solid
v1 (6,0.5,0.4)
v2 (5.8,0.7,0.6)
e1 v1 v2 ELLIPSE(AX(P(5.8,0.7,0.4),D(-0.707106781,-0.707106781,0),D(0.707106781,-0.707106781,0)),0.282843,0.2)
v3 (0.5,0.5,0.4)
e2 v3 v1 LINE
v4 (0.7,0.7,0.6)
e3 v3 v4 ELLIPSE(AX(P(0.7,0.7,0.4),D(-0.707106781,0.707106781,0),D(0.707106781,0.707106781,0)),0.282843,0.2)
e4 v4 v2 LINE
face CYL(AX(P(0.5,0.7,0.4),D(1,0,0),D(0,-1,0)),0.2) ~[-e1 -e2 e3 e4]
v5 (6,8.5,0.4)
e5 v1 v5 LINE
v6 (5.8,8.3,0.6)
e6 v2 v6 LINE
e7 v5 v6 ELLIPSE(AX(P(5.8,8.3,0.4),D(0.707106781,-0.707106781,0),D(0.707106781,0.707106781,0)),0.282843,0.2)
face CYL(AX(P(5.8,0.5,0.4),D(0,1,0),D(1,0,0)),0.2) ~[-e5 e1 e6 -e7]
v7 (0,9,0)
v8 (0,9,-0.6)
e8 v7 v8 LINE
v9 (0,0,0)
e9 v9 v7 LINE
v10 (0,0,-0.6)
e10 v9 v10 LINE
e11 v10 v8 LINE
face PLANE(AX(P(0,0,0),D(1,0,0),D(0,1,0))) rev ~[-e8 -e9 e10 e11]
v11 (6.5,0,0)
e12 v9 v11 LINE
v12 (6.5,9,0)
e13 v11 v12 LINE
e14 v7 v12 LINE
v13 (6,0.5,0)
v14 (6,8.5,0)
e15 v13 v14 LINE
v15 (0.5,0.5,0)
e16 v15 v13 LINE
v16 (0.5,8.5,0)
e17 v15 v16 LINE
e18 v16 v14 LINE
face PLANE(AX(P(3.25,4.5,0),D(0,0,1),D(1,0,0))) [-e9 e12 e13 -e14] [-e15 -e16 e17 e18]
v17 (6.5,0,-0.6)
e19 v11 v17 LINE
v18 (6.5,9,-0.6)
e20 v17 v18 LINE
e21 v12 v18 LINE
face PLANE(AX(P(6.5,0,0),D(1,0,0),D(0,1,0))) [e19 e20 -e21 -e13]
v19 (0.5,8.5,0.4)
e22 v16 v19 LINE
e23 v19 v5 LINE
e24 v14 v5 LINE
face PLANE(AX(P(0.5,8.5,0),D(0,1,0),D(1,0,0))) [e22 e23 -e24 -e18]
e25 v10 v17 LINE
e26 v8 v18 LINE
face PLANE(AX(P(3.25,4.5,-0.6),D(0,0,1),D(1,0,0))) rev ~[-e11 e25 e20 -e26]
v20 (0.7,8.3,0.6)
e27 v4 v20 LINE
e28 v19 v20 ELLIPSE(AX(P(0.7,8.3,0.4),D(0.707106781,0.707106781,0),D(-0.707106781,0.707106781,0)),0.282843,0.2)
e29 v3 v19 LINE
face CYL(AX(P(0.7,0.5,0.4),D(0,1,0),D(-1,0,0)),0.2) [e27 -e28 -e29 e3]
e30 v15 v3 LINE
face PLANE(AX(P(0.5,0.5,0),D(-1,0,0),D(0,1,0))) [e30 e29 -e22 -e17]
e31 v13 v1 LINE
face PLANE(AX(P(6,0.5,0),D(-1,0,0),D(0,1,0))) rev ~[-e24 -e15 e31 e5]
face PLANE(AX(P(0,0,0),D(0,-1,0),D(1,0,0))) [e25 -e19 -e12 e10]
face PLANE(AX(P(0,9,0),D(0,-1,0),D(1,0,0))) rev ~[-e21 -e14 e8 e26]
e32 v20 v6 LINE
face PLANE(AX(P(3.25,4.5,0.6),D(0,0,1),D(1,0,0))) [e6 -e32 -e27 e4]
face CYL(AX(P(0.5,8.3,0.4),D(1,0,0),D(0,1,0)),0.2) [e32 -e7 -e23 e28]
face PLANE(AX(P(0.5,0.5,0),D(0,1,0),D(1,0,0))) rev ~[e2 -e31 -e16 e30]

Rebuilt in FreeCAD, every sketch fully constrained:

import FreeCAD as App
import Part
import Sketcher
Q = App.Units.Quantity


def edges_at(feature, points):
    """Names of the edges that pass closest to the given points."""
    edges = feature.Shape.Edges
    near = lambda p: min(range(len(edges)), key=lambda i: edges[i].distToShape(Part.Vertex(*p))[0])
    return sorted({f"Edge{near(p) + 1}" for p in points})

doc = App.newDocument("Part")
body = doc.addObject("PartDesign::Body", "Body")

# Sketch on XY plane
sketch1 = body.newObject("Sketcher::SketchObject", "Sketch")
sketch1.AttachmentSupport = (doc.getObject("XY_Plane"), [""])
sketch1.MapMode = "FlatFace"
sketch1.addGeometry([
    Part.LineSegment(App.Vector(0, 9, 0), App.Vector(0, 0, 0)),
    Part.LineSegment(App.Vector(0, 0, 0), App.Vector(6.5, 0, 0)),
    Part.LineSegment(App.Vector(6.5, 0, 0), App.Vector(6.5, 9, 0)),
    Part.LineSegment(App.Vector(6.5, 9, 0), App.Vector(0, 9, 0)),
], False)
sketch1.addConstraint([
    Sketcher.Constraint("Coincident", 0, 2, 1, 1),
    Sketcher.Constraint("Coincident", 1, 2, 2, 1),
    Sketcher.Constraint("Coincident", 2, 2, 3, 1),
    Sketcher.Constraint("Coincident", 3, 2, 0, 1),
    Sketcher.Constraint("Vertical", 0),
    Sketcher.Constraint("Horizontal", 1),
    Sketcher.Constraint("Vertical", 2),
    Sketcher.Constraint("Horizontal", 3),
    Sketcher.Constraint("Coincident", 0, 2, -1, 1),
    Sketcher.Constraint("DistanceY", 0, 2, 0, 1, Q("9 mm")),
    Sketcher.Constraint("DistanceX", 1, 1, 1, 2, Q("6.5 mm")),
])
pad1 = body.newObject("PartDesign::Pad", "Pad")
pad1.Profile = sketch1
pad1.Length = 0.6
pad1.Reversed = True

# Sketch on XY plane
sketch2 = body.newObject("Sketcher::SketchObject", "Sketch001")
sketch2.AttachmentSupport = (doc.getObject("XY_Plane"), [""])
sketch2.MapMode = "FlatFace"
sketch2.addGeometry([
    Part.LineSegment(App.Vector(0.5, 8.5, 0), App.Vector(0.5, 0.5, 0)),
    Part.LineSegment(App.Vector(0.5, 0.5, 0), App.Vector(6, 0.5, 0)),
    Part.LineSegment(App.Vector(6, 0.5, 0), App.Vector(6, 8.5, 0)),
    Part.LineSegment(App.Vector(6, 8.5, 0), App.Vector(0.5, 8.5, 0)),
], False)
sketch2.addConstraint([
    Sketcher.Constraint("Coincident", 0, 2, 1, 1),
    Sketcher.Constraint("Coincident", 1, 2, 2, 1),
    Sketcher.Constraint("Coincident", 2, 2, 3, 1),
    Sketcher.Constraint("Coincident", 3, 2, 0, 1),
    Sketcher.Constraint("Vertical", 0),
    Sketcher.Constraint("Horizontal", 1),
    Sketcher.Constraint("Vertical", 2),
    Sketcher.Constraint("Horizontal", 3),
    Sketcher.Constraint("DistanceY", 0, 2, 0, 1, Q("8 mm")),
    Sketcher.Constraint("DistanceX", 1, 1, 1, 2, Q("5.5 mm")),
    Sketcher.Constraint("DistanceX", -1, 1, 1, 2, Q("6 mm")),
    Sketcher.Constraint("DistanceY", -1, 1, 0, 2, Q("0.5 mm")),
])
pad2 = body.newObject("PartDesign::Pad", "Pad001")
pad2.Profile = sketch2
pad2.Length = 0.6
doc.recompute()

fillet = body.newObject("PartDesign::Fillet", "Fillet")
fillet.Base = (pad2, edges_at(pad2, [
    (0.5, 4.5, 0.6),
    (3.25, 0.5, 0.6),
    (6, 4.5, 0.6),
    (3.25, 8.5, 0.6),
]))
fillet.Radius = 0.2

doc.recompute()
